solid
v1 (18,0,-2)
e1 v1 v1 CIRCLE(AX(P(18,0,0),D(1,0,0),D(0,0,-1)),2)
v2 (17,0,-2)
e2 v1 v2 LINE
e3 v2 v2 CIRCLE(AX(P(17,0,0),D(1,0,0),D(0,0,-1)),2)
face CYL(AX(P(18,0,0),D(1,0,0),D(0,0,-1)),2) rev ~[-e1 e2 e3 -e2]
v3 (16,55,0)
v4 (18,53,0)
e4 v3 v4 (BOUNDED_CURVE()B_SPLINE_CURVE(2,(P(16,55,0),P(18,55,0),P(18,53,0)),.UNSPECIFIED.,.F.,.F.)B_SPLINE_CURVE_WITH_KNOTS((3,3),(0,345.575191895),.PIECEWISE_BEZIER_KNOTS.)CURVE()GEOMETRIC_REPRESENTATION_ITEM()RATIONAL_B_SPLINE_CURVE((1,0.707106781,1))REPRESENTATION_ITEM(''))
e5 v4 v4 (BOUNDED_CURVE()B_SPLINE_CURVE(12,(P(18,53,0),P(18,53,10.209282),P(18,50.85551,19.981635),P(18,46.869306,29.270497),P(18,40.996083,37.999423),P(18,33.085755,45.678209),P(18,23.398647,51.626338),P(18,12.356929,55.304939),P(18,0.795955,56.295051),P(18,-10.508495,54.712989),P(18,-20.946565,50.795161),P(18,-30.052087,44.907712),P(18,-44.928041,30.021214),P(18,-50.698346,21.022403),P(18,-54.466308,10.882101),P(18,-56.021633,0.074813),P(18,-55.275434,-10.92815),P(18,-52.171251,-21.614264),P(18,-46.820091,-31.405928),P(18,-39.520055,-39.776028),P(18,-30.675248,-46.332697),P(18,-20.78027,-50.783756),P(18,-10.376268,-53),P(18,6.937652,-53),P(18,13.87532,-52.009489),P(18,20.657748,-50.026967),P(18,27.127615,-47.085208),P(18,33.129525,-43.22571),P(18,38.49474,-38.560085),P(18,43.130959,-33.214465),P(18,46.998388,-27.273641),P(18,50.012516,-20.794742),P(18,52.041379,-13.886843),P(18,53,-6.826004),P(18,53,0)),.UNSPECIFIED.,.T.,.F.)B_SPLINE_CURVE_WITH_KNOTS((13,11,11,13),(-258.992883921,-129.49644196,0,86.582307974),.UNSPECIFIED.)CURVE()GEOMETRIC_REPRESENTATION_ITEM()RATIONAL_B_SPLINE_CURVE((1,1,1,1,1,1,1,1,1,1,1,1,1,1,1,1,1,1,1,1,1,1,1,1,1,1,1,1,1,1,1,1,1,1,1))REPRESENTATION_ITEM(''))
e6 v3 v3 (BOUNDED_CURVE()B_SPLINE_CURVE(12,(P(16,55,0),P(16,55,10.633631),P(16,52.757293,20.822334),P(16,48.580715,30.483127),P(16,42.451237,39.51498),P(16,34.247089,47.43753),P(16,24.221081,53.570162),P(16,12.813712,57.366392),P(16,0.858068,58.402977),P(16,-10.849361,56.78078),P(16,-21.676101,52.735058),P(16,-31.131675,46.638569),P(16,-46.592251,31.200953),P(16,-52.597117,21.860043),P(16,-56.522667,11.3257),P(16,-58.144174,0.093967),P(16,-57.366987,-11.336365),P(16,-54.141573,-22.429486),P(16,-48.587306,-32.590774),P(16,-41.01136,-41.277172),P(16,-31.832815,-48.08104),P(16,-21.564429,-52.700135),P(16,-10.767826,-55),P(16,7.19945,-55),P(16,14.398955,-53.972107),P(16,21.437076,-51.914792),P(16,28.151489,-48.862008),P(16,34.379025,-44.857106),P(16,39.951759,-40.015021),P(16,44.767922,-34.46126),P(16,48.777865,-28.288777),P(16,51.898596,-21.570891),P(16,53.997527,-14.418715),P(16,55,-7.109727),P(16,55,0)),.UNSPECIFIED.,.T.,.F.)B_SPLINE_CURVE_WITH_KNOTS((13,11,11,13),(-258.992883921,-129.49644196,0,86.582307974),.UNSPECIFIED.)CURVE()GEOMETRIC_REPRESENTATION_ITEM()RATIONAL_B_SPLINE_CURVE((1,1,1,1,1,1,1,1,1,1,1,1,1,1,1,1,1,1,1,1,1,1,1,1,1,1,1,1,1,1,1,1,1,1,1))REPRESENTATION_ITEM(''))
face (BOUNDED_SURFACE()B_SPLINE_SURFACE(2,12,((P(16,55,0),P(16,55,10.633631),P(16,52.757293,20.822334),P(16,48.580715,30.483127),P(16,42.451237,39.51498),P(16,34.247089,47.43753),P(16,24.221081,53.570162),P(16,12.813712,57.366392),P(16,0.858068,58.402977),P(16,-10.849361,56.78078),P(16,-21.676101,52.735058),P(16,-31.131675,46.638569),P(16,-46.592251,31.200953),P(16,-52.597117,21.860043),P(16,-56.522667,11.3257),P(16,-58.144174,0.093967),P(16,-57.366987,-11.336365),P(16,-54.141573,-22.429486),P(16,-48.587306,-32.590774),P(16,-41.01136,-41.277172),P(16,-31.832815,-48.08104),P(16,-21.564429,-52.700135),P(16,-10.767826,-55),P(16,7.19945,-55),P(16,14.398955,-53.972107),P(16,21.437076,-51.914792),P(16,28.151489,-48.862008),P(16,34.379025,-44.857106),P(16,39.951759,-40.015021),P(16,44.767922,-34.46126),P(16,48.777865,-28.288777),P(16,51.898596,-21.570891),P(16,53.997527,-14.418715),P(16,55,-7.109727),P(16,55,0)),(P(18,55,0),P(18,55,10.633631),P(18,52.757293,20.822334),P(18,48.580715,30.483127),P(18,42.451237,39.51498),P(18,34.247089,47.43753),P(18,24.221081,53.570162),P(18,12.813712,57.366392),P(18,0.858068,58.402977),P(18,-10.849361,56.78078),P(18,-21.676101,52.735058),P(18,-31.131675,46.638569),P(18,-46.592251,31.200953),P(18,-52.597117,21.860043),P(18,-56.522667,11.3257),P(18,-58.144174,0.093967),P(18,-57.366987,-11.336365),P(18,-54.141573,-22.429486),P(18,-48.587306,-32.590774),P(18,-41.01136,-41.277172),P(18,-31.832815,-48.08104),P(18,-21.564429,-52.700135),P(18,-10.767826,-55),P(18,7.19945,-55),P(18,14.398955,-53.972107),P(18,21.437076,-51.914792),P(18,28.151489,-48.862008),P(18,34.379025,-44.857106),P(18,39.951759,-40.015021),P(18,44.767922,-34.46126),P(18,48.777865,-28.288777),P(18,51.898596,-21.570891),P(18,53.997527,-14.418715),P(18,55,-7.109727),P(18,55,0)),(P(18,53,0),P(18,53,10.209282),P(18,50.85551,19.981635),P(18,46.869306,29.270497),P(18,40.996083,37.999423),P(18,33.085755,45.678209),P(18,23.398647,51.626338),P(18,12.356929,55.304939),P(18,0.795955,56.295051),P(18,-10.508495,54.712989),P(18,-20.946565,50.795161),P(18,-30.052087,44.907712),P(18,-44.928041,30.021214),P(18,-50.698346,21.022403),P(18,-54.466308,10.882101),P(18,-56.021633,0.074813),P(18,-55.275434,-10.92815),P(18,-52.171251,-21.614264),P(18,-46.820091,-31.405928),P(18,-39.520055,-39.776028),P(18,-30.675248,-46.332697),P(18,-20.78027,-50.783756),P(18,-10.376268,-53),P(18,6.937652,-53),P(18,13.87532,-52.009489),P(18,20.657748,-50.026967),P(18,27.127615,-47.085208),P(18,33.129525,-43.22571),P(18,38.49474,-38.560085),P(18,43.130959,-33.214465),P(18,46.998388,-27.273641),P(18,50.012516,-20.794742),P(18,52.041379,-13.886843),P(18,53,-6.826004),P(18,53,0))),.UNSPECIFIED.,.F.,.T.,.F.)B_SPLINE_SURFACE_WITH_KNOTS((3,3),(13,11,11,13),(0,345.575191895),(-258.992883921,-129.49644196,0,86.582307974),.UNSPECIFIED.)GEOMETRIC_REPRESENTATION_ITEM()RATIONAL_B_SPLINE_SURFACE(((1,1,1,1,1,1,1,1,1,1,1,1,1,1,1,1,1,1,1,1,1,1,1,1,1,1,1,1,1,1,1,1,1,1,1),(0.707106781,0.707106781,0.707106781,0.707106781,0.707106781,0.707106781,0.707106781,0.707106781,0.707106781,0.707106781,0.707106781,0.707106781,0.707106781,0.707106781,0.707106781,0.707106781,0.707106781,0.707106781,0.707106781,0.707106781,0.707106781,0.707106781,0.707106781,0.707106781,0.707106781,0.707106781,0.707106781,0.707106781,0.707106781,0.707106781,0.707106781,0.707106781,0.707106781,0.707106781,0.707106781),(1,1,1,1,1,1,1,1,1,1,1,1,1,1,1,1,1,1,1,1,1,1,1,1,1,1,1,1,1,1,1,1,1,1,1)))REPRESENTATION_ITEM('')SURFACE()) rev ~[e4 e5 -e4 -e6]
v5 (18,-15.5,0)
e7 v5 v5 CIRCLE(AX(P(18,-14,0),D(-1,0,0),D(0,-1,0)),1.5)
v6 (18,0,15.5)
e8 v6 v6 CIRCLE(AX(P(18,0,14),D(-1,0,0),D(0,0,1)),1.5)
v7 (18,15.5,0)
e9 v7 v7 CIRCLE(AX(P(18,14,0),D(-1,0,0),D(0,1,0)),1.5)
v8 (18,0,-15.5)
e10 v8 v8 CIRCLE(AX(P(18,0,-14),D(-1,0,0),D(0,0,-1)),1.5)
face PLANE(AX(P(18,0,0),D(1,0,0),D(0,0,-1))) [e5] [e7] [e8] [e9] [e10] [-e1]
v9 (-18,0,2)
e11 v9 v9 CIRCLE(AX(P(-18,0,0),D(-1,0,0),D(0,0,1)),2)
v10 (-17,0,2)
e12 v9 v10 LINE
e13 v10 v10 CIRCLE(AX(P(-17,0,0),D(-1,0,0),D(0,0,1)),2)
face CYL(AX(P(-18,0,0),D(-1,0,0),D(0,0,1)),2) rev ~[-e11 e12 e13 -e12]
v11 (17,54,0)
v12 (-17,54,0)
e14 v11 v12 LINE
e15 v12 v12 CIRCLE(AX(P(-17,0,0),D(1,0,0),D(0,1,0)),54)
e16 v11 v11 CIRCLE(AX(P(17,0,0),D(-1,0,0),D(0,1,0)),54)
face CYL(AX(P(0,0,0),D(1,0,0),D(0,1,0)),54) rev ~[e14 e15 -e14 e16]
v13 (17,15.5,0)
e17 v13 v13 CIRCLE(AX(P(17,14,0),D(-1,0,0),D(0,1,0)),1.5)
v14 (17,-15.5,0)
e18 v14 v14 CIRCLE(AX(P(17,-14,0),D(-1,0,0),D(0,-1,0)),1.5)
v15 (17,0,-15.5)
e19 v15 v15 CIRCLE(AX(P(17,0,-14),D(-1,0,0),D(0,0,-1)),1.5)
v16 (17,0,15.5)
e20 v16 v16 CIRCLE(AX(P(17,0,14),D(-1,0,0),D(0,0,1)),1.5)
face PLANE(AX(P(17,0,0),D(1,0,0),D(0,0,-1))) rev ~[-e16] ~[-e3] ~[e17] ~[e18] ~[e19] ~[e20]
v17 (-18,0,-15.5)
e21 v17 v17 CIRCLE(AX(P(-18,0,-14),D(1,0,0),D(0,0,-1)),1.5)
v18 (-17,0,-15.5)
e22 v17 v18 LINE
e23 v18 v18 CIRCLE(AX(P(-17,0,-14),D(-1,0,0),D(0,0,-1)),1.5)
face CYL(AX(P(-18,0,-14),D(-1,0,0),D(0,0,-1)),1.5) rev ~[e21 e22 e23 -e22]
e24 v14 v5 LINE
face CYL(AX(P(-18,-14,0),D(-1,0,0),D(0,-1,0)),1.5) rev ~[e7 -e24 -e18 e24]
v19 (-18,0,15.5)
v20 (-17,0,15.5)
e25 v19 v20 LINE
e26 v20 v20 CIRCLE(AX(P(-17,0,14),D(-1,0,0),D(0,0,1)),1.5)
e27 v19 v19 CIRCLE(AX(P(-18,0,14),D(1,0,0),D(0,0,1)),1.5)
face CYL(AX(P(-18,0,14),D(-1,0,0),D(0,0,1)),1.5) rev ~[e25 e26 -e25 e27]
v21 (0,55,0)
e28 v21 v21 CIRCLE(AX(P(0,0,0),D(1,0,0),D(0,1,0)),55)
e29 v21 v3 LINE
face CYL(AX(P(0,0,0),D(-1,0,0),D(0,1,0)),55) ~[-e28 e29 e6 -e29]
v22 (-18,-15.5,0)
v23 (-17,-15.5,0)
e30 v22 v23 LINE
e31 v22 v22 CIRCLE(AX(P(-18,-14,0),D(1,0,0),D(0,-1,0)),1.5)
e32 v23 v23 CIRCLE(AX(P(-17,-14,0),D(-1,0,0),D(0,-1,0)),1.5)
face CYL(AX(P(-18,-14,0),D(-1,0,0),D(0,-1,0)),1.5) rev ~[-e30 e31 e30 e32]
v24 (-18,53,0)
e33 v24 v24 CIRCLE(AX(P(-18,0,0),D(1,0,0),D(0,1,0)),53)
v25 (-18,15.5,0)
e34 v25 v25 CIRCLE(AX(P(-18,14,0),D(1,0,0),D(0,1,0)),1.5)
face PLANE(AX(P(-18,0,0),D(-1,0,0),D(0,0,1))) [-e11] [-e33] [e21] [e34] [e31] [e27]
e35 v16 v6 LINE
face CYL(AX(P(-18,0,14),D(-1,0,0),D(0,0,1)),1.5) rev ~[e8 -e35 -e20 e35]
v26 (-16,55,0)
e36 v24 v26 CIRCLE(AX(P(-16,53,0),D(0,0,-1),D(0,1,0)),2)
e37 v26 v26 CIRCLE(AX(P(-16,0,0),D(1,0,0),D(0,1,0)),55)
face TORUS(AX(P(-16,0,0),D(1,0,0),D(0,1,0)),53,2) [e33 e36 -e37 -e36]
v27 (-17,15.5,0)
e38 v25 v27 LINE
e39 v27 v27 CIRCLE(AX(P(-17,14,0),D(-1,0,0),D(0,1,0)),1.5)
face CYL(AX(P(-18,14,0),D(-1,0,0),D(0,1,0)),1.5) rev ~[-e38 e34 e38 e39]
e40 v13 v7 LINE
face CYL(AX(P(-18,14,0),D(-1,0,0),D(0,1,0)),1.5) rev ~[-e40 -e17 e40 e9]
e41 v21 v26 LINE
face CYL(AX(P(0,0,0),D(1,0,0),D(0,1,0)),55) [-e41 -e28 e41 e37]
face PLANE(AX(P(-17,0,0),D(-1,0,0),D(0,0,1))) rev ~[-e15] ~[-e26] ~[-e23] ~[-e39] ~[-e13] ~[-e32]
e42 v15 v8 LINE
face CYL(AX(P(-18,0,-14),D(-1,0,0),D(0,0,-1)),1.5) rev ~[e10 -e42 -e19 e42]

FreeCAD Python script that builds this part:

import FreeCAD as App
import Part
import Sketcher
from FreeCAD import Vector
Q = App.Units.Quantity


def edges_at(feature, points):
    """Names of the edges that pass closest to the given points."""
    edges = feature.Shape.Edges
    near = lambda p: min(range(len(edges)), key=lambda i: edges[i].distToShape(Part.Vertex(*p))[0])
    return sorted({f"Edge{near(p) + 1}" for p in points})

doc = App.newDocument("Part")
body = doc.addObject("PartDesign::Body", "Body")

# Sketch on YZ plane
sketch1 = body.newObject("Sketcher::SketchObject", "Sketch")
sketch1.AttachmentSupport = (doc.getObject("YZ_Plane"), [""])
sketch1.MapMode = "FlatFace"
sketch1.addGeometry(Part.Circle(Vector(0, 0, 0), Vector(0, 0, 1), 55), False)
sketch1.addGeometry(Part.Circle(Vector(0, 0, 0), Vector(0, 0, 1), 54), False)
sketch1.addConstraint(Sketcher.Constraint("Coincident", 0, 3, -1, 1))
sketch1.addConstraint(Sketcher.Constraint("Coincident", 1, 3, -1, 1))
sketch1.addConstraint(Sketcher.Constraint("Diameter", 0, Q("110 mm")))
sketch1.addConstraint(Sketcher.Constraint("Diameter", 1, Q("108 mm")))
pad1 = body.newObject("PartDesign::Pad", "Pad")
pad1.Profile = sketch1
pad1.Length = 36
pad1.Midplane = True

# Sketch on YZ plane
sketch2 = body.newObject("Sketcher::SketchObject", "Sketch001")
sketch2.AttachmentSupport = (doc.getObject("YZ_Plane"), [""])
sketch2.MapMode = "FlatFace"
sketch2.AttachmentOffset = App.Placement(Vector(0, 0, 18), App.Rotation())
sketch2.addGeometry(Part.Circle(Vector(0, 0, 0), Vector(0, 0, 1), 55), False)
sketch2.addGeometry(Part.Circle(Vector(0, 0, 0), Vector(0, 0, 1), 2), False)
sketch2.addConstraint(Sketcher.Constraint("Coincident", 0, 3, -1, 1))
sketch2.addConstraint(Sketcher.Constraint("Coincident", 1, 3, -1, 1))
sketch2.addConstraint(Sketcher.Constraint("Diameter", 1, Q("4 mm")))
sketch2.addConstraint(Sketcher.Constraint("Diameter", 0, Q("110 mm")))
pad2 = body.newObject("PartDesign::Pad", "Pad001")
pad2.Profile = sketch2
pad2.Length = 1
pad2.Reversed = True

# Sketch on YZ plane
sketch3 = body.newObject("Sketcher::SketchObject", "Sketch002")
sketch3.AttachmentSupport = (doc.getObject("YZ_Plane"), [""])
sketch3.MapMode = "FlatFace"
sketch3.AttachmentOffset = App.Placement(Vector(0, 0, -18), App.Rotation())
sketch3.addGeometry(Part.Circle(Vector(0, 0, 0), Vector(0, 0, 1), 54), False)
sketch3.addGeometry(Part.Circle(Vector(0, 0, 0), Vector(0, 0, 1), 2), False)
sketch3.addConstraint(Sketcher.Constraint("Coincident", 0, 3, -1, 1))
sketch3.addConstraint(Sketcher.Constraint("Coincident", 1, 3, -1, 1))
sketch3.addConstraint(Sketcher.Constraint("Diameter", 0, Q("108 mm")))
sketch3.addConstraint(Sketcher.Constraint("Diameter", 1, Q("4 mm")))
pad3 = body.newObject("PartDesign::Pad", "Pad002")
pad3.Profile = sketch3
pad3.Length = 1

# Sketch on YZ plane
sketch4 = body.newObject("Sketcher::SketchObject", "Sketch003")
sketch4.AttachmentSupport = (doc.getObject("YZ_Plane"), [""])
sketch4.MapMode = "FlatFace"
sketch4.AttachmentOffset = App.Placement(Vector(0, 0, -18), App.Rotation())
sketch4.addGeometry(Part.Circle(Vector(0, 14, 0), Vector(0, 0, 1), 1.5), False)
sketch4.addConstraint(Sketcher.Constraint("PointOnObject", 0, 3, -2))
sketch4.addConstraint(Sketcher.Constraint("Diameter", 0, Q("3 mm")))
sketch4.addConstraint(Sketcher.Constraint("DistanceY", -1, 1, 0, 3, Q("14 mm")))
pocket1 = body.newObject("PartDesign::Pocket", "Pocket")
pocket1.Profile = sketch4
pocket1.Length = 36
pocket1.Reversed = True
doc.recompute()

polarpattern = body.newObject("PartDesign::PolarPattern", "PolarPattern")
polarpattern.Originals = [pocket1]
polarpattern.Axis = (doc.getObject("X_Axis"), [""])
polarpattern.Angle = 360
polarpattern.Occurrences = 4
body.Tip = polarpattern
doc.recompute()

fillet = body.newObject("PartDesign::Fillet", "Fillet")
fillet.Base = (polarpattern, edges_at(polarpattern, [(18, 38.891, -38.891), (18, -38.891, 38.891), (-18, -55, 0)]))
fillet.Radius = 2

doc.recompute()
